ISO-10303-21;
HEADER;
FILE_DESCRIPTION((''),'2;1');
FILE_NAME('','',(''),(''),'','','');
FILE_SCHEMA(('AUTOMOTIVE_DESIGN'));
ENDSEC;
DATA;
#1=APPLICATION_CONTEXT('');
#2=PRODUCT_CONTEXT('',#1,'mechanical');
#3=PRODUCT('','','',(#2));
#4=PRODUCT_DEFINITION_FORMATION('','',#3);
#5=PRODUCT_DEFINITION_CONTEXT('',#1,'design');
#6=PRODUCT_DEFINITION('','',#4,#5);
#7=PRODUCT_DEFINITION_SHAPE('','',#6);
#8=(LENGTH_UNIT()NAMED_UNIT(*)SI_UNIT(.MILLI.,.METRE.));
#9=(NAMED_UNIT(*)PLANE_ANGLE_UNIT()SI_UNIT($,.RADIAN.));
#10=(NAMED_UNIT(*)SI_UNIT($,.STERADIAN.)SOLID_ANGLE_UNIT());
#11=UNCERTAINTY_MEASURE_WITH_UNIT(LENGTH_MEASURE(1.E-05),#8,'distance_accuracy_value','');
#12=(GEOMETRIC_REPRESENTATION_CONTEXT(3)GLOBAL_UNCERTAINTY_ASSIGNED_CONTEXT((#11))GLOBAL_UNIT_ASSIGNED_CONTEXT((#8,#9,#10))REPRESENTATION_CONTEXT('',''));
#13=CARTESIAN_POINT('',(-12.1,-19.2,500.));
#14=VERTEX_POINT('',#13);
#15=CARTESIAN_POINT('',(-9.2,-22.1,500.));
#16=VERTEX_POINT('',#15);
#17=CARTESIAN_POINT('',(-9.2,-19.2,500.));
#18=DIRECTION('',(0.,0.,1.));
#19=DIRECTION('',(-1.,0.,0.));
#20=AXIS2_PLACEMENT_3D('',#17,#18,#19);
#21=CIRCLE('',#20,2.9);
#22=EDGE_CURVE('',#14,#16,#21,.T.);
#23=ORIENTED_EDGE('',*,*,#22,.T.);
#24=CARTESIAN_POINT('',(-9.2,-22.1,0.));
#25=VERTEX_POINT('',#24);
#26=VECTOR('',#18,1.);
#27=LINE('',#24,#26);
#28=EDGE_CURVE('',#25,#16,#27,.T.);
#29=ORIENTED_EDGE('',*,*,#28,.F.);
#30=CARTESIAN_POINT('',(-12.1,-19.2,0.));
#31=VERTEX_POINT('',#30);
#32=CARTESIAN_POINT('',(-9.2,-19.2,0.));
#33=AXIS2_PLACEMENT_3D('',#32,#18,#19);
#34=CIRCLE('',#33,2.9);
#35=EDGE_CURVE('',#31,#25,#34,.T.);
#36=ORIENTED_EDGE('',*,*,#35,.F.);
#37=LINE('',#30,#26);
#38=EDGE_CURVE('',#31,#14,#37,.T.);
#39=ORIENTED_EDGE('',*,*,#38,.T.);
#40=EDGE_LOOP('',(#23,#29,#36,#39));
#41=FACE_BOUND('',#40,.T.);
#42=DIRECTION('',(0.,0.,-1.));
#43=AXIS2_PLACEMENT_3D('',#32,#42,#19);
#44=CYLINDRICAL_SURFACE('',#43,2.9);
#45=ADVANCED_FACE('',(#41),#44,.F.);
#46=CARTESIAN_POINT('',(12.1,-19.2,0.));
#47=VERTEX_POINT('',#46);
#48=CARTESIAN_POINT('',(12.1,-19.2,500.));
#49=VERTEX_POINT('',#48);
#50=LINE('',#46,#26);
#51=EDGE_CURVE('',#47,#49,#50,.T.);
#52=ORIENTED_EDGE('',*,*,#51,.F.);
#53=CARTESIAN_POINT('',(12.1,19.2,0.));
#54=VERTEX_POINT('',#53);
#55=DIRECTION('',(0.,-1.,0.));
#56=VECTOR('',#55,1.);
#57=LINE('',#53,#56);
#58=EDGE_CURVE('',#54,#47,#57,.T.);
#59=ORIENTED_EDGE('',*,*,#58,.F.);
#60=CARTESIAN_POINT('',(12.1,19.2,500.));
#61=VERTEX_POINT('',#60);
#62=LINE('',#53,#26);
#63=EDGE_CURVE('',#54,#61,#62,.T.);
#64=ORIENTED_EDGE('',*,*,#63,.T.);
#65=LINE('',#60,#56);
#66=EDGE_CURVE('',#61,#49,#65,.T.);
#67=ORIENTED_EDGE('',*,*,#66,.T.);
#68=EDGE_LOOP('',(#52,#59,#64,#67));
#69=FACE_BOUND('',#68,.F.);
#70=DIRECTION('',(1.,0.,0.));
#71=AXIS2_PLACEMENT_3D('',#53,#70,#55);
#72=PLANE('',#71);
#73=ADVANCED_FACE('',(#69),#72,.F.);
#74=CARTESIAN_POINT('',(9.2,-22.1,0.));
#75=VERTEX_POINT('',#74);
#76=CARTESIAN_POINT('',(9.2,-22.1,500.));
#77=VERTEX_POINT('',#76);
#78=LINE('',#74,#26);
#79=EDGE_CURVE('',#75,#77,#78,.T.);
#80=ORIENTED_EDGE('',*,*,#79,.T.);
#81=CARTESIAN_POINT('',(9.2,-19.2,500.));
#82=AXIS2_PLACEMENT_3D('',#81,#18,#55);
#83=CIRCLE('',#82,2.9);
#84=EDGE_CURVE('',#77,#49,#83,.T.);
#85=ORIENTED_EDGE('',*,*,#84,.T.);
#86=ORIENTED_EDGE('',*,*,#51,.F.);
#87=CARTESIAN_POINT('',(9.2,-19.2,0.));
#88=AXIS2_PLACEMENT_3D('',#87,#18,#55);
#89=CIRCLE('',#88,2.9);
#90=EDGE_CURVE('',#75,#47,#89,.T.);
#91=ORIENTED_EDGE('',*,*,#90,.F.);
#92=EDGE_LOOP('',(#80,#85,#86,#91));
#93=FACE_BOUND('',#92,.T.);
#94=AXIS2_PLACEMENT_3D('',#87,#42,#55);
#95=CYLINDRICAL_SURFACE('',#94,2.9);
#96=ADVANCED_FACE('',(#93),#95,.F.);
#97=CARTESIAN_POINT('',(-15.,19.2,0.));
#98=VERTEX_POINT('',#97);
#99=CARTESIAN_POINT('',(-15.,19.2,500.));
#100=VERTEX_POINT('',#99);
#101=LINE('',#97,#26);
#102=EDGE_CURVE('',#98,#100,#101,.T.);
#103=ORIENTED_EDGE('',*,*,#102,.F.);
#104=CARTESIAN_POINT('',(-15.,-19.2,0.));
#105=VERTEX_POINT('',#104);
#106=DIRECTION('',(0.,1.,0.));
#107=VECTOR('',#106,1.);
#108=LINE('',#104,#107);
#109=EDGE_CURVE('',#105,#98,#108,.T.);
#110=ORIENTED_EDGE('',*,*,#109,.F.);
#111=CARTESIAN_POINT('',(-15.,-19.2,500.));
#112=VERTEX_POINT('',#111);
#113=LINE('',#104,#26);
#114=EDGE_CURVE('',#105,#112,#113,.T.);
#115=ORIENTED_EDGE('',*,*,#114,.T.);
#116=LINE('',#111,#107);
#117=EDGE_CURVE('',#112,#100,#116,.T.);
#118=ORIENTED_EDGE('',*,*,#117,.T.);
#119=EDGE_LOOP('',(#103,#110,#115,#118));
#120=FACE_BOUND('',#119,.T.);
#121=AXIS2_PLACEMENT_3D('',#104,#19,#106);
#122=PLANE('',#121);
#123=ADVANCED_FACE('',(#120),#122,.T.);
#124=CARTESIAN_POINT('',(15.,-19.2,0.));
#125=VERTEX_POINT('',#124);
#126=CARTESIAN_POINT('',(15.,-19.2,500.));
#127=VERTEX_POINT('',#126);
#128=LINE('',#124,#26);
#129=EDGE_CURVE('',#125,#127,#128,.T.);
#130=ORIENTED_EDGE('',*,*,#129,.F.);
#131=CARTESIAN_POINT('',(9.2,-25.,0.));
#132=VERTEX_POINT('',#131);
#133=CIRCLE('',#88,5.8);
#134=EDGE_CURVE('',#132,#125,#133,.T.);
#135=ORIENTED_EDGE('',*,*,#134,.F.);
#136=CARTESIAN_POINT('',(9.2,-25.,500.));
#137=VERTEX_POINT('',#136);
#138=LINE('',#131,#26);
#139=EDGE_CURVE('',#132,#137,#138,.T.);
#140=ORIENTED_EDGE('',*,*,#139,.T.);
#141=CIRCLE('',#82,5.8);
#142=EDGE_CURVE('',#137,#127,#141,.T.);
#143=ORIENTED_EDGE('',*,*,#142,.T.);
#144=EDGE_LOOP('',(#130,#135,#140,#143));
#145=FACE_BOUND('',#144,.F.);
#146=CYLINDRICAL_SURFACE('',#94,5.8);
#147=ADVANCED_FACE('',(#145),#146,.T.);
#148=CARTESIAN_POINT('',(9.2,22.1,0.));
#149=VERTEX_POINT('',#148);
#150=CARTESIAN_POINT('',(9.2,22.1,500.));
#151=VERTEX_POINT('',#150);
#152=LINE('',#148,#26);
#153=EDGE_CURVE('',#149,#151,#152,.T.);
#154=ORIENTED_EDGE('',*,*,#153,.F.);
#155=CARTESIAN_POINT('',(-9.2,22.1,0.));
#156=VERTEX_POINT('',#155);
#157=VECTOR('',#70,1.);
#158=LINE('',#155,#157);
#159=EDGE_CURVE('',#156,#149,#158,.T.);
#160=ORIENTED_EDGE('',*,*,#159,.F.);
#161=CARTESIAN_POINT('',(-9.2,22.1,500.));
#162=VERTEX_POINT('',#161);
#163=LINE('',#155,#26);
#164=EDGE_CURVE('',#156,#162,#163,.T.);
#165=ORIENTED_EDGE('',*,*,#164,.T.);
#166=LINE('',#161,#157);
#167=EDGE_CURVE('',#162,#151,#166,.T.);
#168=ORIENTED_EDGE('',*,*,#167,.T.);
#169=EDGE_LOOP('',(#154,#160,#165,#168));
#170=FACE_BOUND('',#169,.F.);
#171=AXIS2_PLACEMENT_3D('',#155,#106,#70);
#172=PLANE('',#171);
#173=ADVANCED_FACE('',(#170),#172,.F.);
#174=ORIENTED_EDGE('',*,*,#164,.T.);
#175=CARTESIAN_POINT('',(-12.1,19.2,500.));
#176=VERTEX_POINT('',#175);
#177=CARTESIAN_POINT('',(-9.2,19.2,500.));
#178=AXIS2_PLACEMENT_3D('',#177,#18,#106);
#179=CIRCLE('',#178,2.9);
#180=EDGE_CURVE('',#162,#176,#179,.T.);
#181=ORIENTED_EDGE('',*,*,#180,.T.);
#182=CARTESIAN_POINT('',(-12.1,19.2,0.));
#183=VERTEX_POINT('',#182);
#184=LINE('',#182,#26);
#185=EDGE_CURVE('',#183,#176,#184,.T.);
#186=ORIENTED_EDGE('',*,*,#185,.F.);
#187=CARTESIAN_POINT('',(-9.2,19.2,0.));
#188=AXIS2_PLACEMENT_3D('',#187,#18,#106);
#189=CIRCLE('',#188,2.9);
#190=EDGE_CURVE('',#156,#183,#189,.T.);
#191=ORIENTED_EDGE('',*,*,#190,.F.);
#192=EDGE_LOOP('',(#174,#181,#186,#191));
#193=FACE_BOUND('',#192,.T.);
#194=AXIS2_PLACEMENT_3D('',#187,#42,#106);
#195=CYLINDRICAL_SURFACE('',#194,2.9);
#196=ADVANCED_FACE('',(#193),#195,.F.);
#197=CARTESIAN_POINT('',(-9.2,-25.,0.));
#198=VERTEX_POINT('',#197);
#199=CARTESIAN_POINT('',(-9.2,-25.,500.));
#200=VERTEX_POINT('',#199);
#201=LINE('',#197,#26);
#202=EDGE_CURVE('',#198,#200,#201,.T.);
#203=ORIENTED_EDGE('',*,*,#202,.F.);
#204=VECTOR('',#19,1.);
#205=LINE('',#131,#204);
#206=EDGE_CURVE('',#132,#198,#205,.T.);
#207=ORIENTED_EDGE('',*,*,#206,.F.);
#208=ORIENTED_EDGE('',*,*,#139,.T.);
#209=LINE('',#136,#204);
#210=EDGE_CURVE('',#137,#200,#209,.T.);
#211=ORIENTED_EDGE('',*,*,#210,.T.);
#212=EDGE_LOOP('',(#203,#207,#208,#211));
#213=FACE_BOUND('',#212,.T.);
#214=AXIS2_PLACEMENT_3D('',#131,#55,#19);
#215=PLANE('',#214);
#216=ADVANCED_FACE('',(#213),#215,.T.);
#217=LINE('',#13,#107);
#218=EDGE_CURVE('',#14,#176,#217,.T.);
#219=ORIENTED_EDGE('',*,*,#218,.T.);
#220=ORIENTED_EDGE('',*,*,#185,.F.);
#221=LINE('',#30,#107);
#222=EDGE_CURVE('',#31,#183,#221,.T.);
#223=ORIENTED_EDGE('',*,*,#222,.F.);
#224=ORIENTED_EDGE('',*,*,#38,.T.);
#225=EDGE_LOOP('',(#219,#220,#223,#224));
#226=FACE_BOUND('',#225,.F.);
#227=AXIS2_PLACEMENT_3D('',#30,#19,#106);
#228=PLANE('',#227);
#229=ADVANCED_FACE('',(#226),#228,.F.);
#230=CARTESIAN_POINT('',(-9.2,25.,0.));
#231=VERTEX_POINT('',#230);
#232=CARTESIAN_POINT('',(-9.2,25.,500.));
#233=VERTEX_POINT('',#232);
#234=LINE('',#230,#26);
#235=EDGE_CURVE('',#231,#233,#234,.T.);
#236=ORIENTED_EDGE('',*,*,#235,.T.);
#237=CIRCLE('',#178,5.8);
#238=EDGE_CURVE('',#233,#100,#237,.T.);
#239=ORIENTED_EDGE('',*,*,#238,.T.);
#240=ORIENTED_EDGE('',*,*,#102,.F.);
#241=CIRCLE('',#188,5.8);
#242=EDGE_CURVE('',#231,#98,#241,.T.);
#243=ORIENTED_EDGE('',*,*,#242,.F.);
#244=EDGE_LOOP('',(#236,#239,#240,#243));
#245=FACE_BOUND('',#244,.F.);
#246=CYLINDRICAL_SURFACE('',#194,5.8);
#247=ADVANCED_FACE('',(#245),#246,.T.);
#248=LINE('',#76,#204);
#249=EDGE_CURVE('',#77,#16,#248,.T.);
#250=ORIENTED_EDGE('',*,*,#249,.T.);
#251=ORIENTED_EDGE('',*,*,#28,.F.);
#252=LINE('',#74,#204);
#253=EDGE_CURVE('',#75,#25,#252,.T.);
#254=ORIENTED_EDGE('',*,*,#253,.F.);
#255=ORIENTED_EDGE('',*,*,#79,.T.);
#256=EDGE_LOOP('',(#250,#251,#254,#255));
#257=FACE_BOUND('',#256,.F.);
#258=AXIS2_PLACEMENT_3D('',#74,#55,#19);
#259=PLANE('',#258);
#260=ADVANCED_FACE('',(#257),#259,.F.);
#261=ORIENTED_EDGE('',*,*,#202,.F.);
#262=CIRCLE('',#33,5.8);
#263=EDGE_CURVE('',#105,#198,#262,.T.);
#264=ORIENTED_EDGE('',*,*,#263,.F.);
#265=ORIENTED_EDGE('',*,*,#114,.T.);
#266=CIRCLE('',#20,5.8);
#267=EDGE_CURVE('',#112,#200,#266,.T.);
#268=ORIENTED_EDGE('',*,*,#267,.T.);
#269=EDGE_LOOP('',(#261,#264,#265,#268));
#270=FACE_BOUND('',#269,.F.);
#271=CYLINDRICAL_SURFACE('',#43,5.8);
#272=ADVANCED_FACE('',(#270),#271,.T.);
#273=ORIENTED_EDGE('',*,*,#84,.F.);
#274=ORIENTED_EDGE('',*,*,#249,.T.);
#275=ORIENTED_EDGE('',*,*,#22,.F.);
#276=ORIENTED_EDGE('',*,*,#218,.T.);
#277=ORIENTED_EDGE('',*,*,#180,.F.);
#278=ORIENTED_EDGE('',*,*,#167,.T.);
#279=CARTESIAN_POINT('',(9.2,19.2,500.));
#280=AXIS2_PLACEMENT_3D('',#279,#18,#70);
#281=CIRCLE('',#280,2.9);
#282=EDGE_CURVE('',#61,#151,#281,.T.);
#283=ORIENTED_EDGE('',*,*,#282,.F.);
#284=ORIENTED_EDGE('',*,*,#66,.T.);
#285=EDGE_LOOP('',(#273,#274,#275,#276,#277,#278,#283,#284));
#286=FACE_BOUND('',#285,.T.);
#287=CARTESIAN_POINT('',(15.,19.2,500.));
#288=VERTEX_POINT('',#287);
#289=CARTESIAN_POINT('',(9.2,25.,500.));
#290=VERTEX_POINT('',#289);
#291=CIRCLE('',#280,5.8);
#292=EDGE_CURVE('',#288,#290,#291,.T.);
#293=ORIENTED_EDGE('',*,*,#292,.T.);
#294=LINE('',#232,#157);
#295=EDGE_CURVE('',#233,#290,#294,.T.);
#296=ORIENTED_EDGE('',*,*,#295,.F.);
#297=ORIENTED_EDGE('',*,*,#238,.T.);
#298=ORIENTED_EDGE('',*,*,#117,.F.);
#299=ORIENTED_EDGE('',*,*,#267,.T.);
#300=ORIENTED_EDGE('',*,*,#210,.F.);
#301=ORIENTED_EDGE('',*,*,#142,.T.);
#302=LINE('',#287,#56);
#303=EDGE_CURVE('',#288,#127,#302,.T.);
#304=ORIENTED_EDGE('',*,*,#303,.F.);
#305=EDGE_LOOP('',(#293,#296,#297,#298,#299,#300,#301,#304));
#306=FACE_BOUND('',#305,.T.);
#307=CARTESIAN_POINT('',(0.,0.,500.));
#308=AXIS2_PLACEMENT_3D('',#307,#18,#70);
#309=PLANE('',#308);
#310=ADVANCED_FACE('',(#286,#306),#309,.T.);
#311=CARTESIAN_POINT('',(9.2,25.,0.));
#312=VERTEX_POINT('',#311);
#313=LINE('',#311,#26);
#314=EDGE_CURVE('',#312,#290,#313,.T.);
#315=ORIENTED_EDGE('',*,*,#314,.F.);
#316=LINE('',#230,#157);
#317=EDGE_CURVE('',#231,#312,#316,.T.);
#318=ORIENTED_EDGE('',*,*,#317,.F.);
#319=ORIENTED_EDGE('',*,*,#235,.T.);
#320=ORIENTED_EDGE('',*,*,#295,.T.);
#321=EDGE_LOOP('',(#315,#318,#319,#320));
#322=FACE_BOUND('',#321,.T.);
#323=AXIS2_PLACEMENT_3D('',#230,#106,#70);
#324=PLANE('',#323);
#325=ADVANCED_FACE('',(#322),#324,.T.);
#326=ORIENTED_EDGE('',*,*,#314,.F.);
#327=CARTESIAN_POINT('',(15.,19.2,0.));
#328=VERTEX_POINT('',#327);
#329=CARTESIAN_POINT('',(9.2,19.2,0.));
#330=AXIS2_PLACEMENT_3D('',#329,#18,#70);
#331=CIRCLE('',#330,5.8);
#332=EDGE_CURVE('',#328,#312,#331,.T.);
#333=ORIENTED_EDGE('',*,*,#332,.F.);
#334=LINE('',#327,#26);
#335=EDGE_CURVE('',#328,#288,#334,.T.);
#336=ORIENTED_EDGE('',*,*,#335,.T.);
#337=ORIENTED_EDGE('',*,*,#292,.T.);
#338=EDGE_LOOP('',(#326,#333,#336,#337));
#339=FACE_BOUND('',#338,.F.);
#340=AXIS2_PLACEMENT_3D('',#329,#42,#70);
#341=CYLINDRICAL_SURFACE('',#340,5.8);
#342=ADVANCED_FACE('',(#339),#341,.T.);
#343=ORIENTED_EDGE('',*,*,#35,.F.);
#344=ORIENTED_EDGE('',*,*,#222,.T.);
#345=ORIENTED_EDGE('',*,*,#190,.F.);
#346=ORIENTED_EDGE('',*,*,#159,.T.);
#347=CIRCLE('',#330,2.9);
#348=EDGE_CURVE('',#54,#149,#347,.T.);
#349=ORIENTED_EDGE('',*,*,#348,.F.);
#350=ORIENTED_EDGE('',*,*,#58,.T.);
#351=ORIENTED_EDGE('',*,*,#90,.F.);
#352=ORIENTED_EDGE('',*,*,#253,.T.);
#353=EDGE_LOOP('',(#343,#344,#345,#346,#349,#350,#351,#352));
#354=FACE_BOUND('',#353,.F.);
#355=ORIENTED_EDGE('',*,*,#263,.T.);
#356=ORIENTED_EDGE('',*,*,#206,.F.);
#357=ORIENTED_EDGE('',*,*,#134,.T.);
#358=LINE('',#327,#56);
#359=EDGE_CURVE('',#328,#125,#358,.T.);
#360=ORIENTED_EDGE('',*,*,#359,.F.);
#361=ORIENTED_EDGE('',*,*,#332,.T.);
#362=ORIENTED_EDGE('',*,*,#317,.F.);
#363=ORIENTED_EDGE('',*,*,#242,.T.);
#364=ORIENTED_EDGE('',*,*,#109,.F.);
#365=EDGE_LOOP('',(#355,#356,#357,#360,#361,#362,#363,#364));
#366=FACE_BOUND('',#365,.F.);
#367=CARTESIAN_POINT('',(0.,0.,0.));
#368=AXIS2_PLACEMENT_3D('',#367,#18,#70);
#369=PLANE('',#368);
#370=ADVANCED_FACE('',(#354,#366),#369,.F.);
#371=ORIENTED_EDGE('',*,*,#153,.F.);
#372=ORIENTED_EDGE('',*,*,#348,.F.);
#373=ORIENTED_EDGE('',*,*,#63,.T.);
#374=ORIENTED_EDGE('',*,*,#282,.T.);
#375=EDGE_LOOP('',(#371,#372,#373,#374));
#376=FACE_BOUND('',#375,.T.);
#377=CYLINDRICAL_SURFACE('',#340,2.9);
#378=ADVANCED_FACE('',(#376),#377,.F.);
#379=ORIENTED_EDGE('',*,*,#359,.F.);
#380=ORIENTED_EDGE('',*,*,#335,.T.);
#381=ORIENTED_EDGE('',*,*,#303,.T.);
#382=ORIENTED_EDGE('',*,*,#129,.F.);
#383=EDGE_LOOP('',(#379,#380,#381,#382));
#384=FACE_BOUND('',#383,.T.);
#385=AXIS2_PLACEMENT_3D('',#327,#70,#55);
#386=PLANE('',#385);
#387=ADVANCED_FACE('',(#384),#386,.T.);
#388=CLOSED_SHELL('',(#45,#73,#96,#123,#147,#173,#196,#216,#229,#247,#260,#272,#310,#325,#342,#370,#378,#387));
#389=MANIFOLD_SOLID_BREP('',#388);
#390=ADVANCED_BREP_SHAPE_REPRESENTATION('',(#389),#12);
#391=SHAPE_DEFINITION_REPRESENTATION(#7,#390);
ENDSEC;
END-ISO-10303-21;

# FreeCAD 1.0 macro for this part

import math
import FreeCAD as App
import Part
import Sketcher

V = App.Vector

doc = App.newDocument("Part")
body = doc.addObject("PartDesign::Body", "Body")

# Sketch on XY plane
sketch1 = body.newObject("Sketcher::SketchObject", "Sketch")
sketch1.AttachmentSupport = (doc.getObject("XY_Plane"), [""])
sketch1.MapMode = "FlatFace"
sketch1.addGeometry(Part.LineSegment(V(9.2, 25, 0), V(-9.2, 25, 0)), False)
sketch1.addGeometry(Part.ArcOfCircle(Part.Circle(V(-9.2, 19.2, 0), V(0, 0, 1), 5.8), math.radians(90), math.radians(180)), False)
sketch1.addGeometry(Part.LineSegment(V(-15, 19.2, 0), V(-15, -19.2, 0)), False)
sketch1.addGeometry(Part.ArcOfCircle(Part.Circle(V(-9.2, -19.2, 0), V(0, 0, 1), 5.8), math.radians(180), math.radians(270)), False)
sketch1.addGeometry(Part.LineSegment(V(-9.2, -25, 0), V(9.2, -25, 0)), False)
sketch1.addGeometry(Part.ArcOfCircle(Part.Circle(V(9.2, -19.2, 0), V(0, 0, 1), 5.8), math.radians(-90), math.radians(0)), False)
sketch1.addGeometry(Part.LineSegment(V(15, -19.2, 0), V(15, 19.2, 0)), False)
sketch1.addGeometry(Part.ArcOfCircle(Part.Circle(V(9.2, 19.2, 0), V(0, 0, 1), 5.8), math.radians(0), math.radians(90)), False)
sketch1.addGeometry(Part.ArcOfCircle(Part.Circle(V(-9.2, 19.2, 0), V(0, 0, 1), 2.9), math.radians(90), math.radians(180)), False)
sketch1.addGeometry(Part.LineSegment(V(-9.2, 22.1, 0), V(9.2, 22.1, 0)), False)
sketch1.addGeometry(Part.ArcOfCircle(Part.Circle(V(9.2, 19.2, 0), V(0, 0, 1), 2.9), math.radians(0), math.radians(90)), False)
sketch1.addGeometry(Part.LineSegment(V(12.1, 19.2, 0), V(12.1, -19.2, 0)), False)
sketch1.addGeometry(Part.ArcOfCircle(Part.Circle(V(9.2, -19.2, 0), V(0, 0, 1), 2.9), math.radians(-90), math.radians(0)), False)
sketch1.addGeometry(Part.LineSegment(V(9.2, -22.1, 0), V(-9.2, -22.1, 0)), False)
sketch1.addGeometry(Part.ArcOfCircle(Part.Circle(V(-9.2, -19.2, 0), V(0, 0, 1), 2.9), math.radians(180), math.radians(270)), False)
sketch1.addGeometry(Part.LineSegment(V(-12.1, -19.2, 0), V(-12.1, 19.2, 0)), False)
sketch1.addConstraint(Sketcher.Constraint("Tangent", 0, 2, 1, 1))
sketch1.addConstraint(Sketcher.Constraint("Tangent", 1, 2, 2, 1))
sketch1.addConstraint(Sketcher.Constraint("Tangent", 2, 2, 3, 1))
sketch1.addConstraint(Sketcher.Constraint("Tangent", 3, 2, 4, 1))
sketch1.addConstraint(Sketcher.Constraint("Tangent", 4, 2, 5, 1))
sketch1.addConstraint(Sketcher.Constraint("Tangent", 5, 2, 6, 1))
sketch1.addConstraint(Sketcher.Constraint("Tangent", 6, 2, 7, 1))
sketch1.addConstraint(Sketcher.Constraint("Tangent", 7, 2, 0, 1))
sketch1.addConstraint(Sketcher.Constraint("Tangent", 8, 1, 9, 1))
sketch1.addConstraint(Sketcher.Constraint("Tangent", 9, 2, 10, 2))
sketch1.addConstraint(Sketcher.Constraint("Tangent", 10, 1, 11, 1))
sketch1.addConstraint(Sketcher.Constraint("Tangent", 11, 2, 12, 2))
sketch1.addConstraint(Sketcher.Constraint("Tangent", 12, 1, 13, 1))
sketch1.addConstraint(Sketcher.Constraint("Tangent", 13, 2, 14, 2))
sketch1.addConstraint(Sketcher.Constraint("Tangent", 14, 1, 15, 1))
sketch1.addConstraint(Sketcher.Constraint("Tangent", 15, 2, 8, 2))
sketch1.addConstraint(Sketcher.Constraint("Horizontal", 0))
sketch1.addConstraint(Sketcher.Constraint("Vertical", 2))
sketch1.addConstraint(Sketcher.Constraint("Horizontal", 4))
sketch1.addConstraint(Sketcher.Constraint("Vertical", 6))
sketch1.addConstraint(Sketcher.Constraint("Horizontal", 9))
sketch1.addConstraint(Sketcher.Constraint("Vertical", 11))
sketch1.addConstraint(Sketcher.Constraint("Horizontal", 13))
sketch1.addConstraint(Sketcher.Constraint("Vertical", 15))
sketch1.addConstraint(Sketcher.Constraint("Coincident", 8, 3, 1, 3))
sketch1.addConstraint(Sketcher.Constraint("Coincident", 10, 3, 7, 3))
sketch1.addConstraint(Sketcher.Constraint("Coincident", 12, 3, 5, 3))
sketch1.addConstraint(Sketcher.Constraint("Equal", 1, 3))
sketch1.addConstraint(Sketcher.Constraint("Equal", 3, 5))
sketch1.addConstraint(Sketcher.Constraint("Equal", 5, 7))
sketch1.addConstraint(Sketcher.Constraint("Equal", 12, 14))
sketch1.addConstraint(Sketcher.Constraint("Symmetric", 1, 3, 5, 3, -1, 1))
sketch1.addConstraint(Sketcher.Constraint("Radius", 1, 5.8))
sketch1.addConstraint(Sketcher.Constraint("Radius", 8, 2.9))
sketch1.addConstraint(Sketcher.Constraint("DistanceY", -1, 1, 0, 2, 25.0))
sketch1.addConstraint(Sketcher.Constraint("DistanceX", 1, 2, -1, 1, 15.0))
pad1 = body.newObject("PartDesign::Pad", "Pad")
pad1.Profile = sketch1
pad1.Length = 500

doc.recompute()
